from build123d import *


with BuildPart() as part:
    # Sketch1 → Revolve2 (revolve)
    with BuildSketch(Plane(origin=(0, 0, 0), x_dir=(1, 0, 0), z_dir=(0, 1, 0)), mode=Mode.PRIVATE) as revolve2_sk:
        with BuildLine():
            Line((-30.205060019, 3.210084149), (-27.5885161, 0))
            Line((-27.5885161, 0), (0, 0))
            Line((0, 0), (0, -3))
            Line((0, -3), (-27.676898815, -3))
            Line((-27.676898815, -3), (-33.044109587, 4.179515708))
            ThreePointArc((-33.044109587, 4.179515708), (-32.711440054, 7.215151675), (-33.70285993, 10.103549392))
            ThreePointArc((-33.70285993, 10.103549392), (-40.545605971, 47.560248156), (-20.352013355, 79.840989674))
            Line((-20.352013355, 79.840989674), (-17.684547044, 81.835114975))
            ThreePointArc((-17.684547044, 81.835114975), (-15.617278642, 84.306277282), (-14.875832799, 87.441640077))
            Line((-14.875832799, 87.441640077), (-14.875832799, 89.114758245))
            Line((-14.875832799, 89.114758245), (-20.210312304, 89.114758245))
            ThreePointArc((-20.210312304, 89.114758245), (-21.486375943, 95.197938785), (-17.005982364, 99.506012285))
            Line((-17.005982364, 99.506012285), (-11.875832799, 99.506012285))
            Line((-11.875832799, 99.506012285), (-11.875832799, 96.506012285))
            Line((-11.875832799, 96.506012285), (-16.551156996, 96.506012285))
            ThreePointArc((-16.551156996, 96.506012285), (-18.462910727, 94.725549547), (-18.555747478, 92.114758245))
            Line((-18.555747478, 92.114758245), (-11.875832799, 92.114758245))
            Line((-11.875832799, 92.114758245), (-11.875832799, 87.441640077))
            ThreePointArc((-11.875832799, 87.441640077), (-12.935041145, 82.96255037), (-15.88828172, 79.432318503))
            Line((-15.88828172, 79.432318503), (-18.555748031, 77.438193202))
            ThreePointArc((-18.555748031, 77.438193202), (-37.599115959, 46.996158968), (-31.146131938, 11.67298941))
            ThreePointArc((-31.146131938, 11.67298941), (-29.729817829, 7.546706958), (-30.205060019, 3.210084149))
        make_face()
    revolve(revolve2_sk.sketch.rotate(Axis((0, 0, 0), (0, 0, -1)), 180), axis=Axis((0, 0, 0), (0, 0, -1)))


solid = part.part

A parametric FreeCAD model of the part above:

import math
import FreeCAD as App
import Part
import Sketcher

V = App.Vector
Q = App.Units.Quantity

doc = App.newDocument("Part")
body = doc.addObject("PartDesign::Body", "Body")

sketch1 = doc.addObject("Sketcher::SketchObject", "Sketch")
body.addObject(sketch1)
sketch1.AttachmentSupport = (doc.XZ_Plane, [""])
sketch1.MapMode = "FlatFace"
sketch1.addGeometry([
    Part.LineSegment(V(-27.6, 0, 0), V(-30.2, -3.2, 0)),
    Part.ArcOfCircle(Part.Circle(V(-39.7, -6.4, 0), V(0, 0, 1), 10), math.radians(-32), math.radians(19)),
    Part.ArcOfCircle(Part.Circle(V(11.2, -37.7, 0), V(0, 0, 1), 49.7), math.radians(148), math.radians(233)),
    Part.LineSegment(V(-18.6, -77.4, 0), V(-15.9, -79.4, 0)),
    Part.ArcOfCircle(Part.Circle(V(-21.9, -87.4, 0), V(0, 0, 1), 10), math.radians(0), math.radians(53)),
    Part.LineSegment(V(-11.9, -87.4, 0), V(-11.9, -92.1, 0)),
    Part.LineSegment(V(-11.9, -92.1, 0), V(-18.6, -92.1, 0)),
    Part.ArcOfCircle(Part.Circle(V(-15.4, -93.3, 0), V(0, 0, 1), 3.4), math.radians(160), math.radians(250)),
    Part.LineSegment(V(-16.6, -96.5, 0), V(-11.9, -96.5, 0)),
    Part.LineSegment(V(-11.9, -96.5, 0), V(-11.9, -99.5, 0)),
    Part.LineSegment(V(-11.9, -99.5, 0), V(-17, -99.5, 0)),
    Part.ArcOfCircle(Part.Circle(V(-15.4, -93.3, 0), V(0, 0, 1), 6.4), math.radians(139), math.radians(255)),
    Part.LineSegment(V(-20.2, -89.1, 0), V(-14.9, -89.1, 0)),
    Part.LineSegment(V(-14.9, -89.1, 0), V(-14.9, -87.4, 0)),
    Part.ArcOfCircle(Part.Circle(V(-21.9, -87.4, 0), V(0, 0, 1), 7), math.radians(0), math.radians(53)),
    Part.LineSegment(V(-17.7, -81.8, 0), V(-20.4, -79.8, 0)),
    Part.ArcOfCircle(Part.Circle(V(11.2, -37.7, 0), V(0, 0, 1), 52.7), math.radians(148), math.radians(233)),
    Part.ArcOfCircle(Part.Circle(V(-39.7, -6.4, 0), V(0, 0, 1), 7), math.radians(-32), math.radians(19)),
    Part.LineSegment(V(-33, -4.2, 0), V(-27.7, 3, 0)),
    Part.LineSegment(V(-27.7, 3, 0), V(0, 3, 0)),
    Part.LineSegment(V(0, 3, 0), V(0, 0, 0)),
    Part.LineSegment(V(0, 0, 0), V(-27.6, 0, 0)),
], False)
sketch1.addConstraint([
    Sketcher.Constraint("Coincident", 0, 2, 1, 2),
    Sketcher.Constraint("Tangent", 1, 1, 2, 1),
    Sketcher.Constraint("Tangent", 2, 2, 3, 1),
    Sketcher.Constraint("Tangent", 3, 2, 4, 2),
    Sketcher.Constraint("Tangent", 4, 1, 5, 1),
    Sketcher.Constraint("Coincident", 5, 2, 6, 1),
    Sketcher.Constraint("Coincident", 6, 2, 7, 1),
    Sketcher.Constraint("Coincident", 7, 2, 8, 1),
    Sketcher.Constraint("Coincident", 8, 2, 9, 1),
    Sketcher.Constraint("Coincident", 9, 2, 10, 1),
    Sketcher.Constraint("Coincident", 10, 2, 11, 2),
    Sketcher.Constraint("Coincident", 11, 1, 12, 1),
    Sketcher.Constraint("Coincident", 12, 2, 13, 1),
    Sketcher.Constraint("Tangent", 13, 2, 14, 1),
    Sketcher.Constraint("Tangent", 14, 2, 15, 1),
    Sketcher.Constraint("Tangent", 15, 2, 16, 2),
    Sketcher.Constraint("Tangent", 16, 1, 17, 1),
    Sketcher.Constraint("Coincident", 17, 2, 18, 1),
    Sketcher.Constraint("Coincident", 18, 2, 19, 1),
    Sketcher.Constraint("Coincident", 19, 2, 20, 1),
    Sketcher.Constraint("Coincident", 20, 2, 21, 1),
    Sketcher.Constraint("Coincident", 21, 2, 0, 1),
    Sketcher.Constraint("Vertical", 5),
    Sketcher.Constraint("Horizontal", 6),
    Sketcher.Constraint("Horizontal", 8),
    Sketcher.Constraint("Vertical", 9),
    Sketcher.Constraint("Horizontal", 10),
    Sketcher.Constraint("Horizontal", 12),
    Sketcher.Constraint("Vertical", 13),
    Sketcher.Constraint("Horizontal", 19),
    Sketcher.Constraint("Vertical", 20),
    Sketcher.Constraint("Horizontal", 21),
    Sketcher.Constraint("Coincident", 20, 2, -1, 1),
    Sketcher.Constraint("Coincident", 11, 3, 7, 3),
    Sketcher.Constraint("Coincident", 14, 3, 4, 3),
    Sketcher.Constraint("Coincident", 16, 3, 2, 3),
    Sketcher.Constraint("Coincident", 17, 3, 1, 3),
    Sketcher.Constraint("Equal", 1, 4),
    Sketcher.Constraint("Equal", 14, 17),
    Sketcher.Constraint("Perpendicular", 15, 18),
    Sketcher.Constraint("Vertical", 2, 2, 6, 2),
    Sketcher.Constraint("Vertical", 5, 2, 8, 2),
    Sketcher.Constraint("Equal", 9, 20),
    Sketcher.Constraint("Radius", 1, Q("10 mm")),
    Sketcher.Constraint("Radius", 14, Q("7 mm")),
    Sketcher.Constraint("DistanceY", 9, 2, 9, 1, Q("3 mm")),
    Sketcher.Constraint("DistanceY", 6, 2, 11, 1, Q("3 mm")),
    Sketcher.Constraint("Radius", 7, Q("3.413319 mm")),
    Sketcher.Constraint("Radius", 11, Q("6.413319 mm")),
    Sketcher.Constraint("DistanceX", 19, 1, 19, 2, Q("27.676899 mm")),
    Sketcher.Constraint("Radius", 2, Q("49.668647 mm")),
    Sketcher.Constraint("DistanceX", 10, 2, 10, 1, Q("5.13015 mm")),
    Sketcher.Constraint("DistanceX", 12, 1, 12, 2, Q("5.33448 mm")),
    Sketcher.Constraint("DistanceY", 5, 2, 5, 1, Q("4.673118 mm")),
    Sketcher.Constraint("DistanceX", 1, 3, 0, 2, Q("9.463499 mm")),
    Sketcher.Constraint("DistanceX", 2, 2, 14, 2, Q("0.871201 mm")),
    Sketcher.Constraint("Distance", 0, Q("4.14137 mm")),
    Sketcher.Constraint("Distance", 18, Q("8.96395 mm")),
    Sketcher.Constraint("DistanceX", 6, 2, 6, 1, Q("6.679915 mm")),
    Sketcher.Constraint("DistanceX", 21, 2, 21, 1, Q("27.588516 mm")),
    Sketcher.Constraint("DistanceY", 4, 3, -1, 1, Q("87.44164 mm")),
])
revolution = doc.addObject("PartDesign::Revolution", "Revolution")
body.addObject(revolution)
revolution.Profile = sketch1
revolution.ReferenceAxis = (sketch1, ["V_Axis"])
revolution.Angle = 360

doc.recompute()
